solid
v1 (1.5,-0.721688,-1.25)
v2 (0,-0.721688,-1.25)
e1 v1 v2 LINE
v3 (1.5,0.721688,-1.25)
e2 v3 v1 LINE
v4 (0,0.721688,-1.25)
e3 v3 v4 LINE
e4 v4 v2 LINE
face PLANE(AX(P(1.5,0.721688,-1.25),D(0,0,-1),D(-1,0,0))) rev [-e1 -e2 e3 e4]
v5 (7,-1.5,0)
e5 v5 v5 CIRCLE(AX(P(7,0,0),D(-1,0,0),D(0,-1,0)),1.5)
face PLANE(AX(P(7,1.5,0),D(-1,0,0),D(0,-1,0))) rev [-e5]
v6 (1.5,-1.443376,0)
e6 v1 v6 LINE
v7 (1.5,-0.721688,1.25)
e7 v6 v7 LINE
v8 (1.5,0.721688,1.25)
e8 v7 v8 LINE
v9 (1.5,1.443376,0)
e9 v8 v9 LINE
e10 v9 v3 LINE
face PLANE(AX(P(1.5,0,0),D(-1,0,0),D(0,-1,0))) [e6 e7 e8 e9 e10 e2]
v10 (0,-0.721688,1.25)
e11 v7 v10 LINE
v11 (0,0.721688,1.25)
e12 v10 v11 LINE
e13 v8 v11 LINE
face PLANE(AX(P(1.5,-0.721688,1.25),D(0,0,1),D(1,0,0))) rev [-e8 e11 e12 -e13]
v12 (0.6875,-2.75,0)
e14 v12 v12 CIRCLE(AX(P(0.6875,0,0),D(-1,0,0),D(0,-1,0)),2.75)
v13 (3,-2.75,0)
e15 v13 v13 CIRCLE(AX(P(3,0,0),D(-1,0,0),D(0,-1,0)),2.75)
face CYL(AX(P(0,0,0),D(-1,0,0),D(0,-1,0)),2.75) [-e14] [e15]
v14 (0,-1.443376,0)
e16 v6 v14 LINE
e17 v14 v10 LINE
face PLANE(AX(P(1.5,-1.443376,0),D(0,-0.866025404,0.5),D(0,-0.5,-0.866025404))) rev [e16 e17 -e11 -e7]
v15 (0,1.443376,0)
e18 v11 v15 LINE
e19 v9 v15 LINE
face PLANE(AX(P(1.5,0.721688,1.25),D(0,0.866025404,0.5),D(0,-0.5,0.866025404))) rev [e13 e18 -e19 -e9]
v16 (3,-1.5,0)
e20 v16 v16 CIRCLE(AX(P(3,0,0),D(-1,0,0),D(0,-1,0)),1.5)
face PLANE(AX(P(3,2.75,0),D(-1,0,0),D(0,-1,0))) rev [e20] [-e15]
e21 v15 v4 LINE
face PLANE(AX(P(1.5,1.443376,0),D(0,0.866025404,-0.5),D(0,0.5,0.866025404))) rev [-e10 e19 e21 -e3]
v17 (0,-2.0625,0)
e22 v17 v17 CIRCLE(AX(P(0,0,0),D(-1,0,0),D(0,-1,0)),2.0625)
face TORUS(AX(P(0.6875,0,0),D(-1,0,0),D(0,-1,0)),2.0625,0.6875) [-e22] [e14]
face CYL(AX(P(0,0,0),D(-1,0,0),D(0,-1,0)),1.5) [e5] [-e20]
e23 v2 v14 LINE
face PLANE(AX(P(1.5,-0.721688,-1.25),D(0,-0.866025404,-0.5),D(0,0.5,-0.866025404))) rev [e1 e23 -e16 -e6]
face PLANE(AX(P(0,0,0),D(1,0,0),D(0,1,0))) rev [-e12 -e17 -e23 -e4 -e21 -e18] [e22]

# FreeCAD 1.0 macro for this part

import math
import FreeCAD as App
import Part
import Sketcher
Q = App.Units.Quantity


def add_polygon(sketch, points):
    """Adds a closed chain of lines whose ends are joined by coincident constraints."""
    first, n = sketch.GeometryCount, len(points)
    for a, b in zip(points, points[1:] + points[:1]):
        sketch.addGeometry(Part.LineSegment(App.Vector(*a, 0), App.Vector(*b, 0)), False)
    for i in range(n):
        sketch.addConstraint(Sketcher.Constraint("Coincident", first + i, 2, first + (i + 1) % n, 1))

doc = App.newDocument("Part")
params = doc.addObject("Spreadsheet::Sheet", "Params")
for row, (alias, value) in enumerate([
    ("sketch1_width", "7 mm"),
    ("sketch1_width2", "4 mm"),
    ("sketch1_height", "1.5 mm"),
    ("sketch1_height2", "1.25 mm"),
    ("revolution_angle", "360 deg"),
    ("pocket1_length", "1.5 mm"),
], start=1):
    params.set(f"A{row}", alias)
    params.set(f"B{row}", "=" + value)
    params.setAlias(f"B{row}", alias)

body = doc.addObject("PartDesign::Body", "Body")

sketch1 = body.newObject("Sketcher::SketchObject", "Sketch")
sketch1.AttachmentSupport = (doc.getObject("XY_Plane"), [""])
sketch1.MapMode = "FlatFace"
sketch1.addGeometry([
    Part.LineSegment(App.Vector(0, 2.0625, 0), App.Vector(0, 0, 0)),
    Part.LineSegment(App.Vector(0, 0, 0), App.Vector(7, 0, 0)),
    Part.LineSegment(App.Vector(7, 0, 0), App.Vector(7, 1.5, 0)),
    Part.LineSegment(App.Vector(7, 1.5, 0), App.Vector(3, 1.5, 0)),
    Part.LineSegment(App.Vector(3, 1.5, 0), App.Vector(3, 2.75, 0)),
    Part.LineSegment(App.Vector(3, 2.75, 0), App.Vector(0.6875, 2.75, 0)),
    Part.ArcOfCircle(Part.Circle(App.Vector(0.6875, 2.0625, 0), App.Vector(0, 0, 1), 0.6875), math.radians(90), math.radians(180)),
], False)
sketch1.addConstraint([
    Sketcher.Constraint("Coincident", 0, 2, 1, 1),
    Sketcher.Constraint("Coincident", 1, 2, 2, 1),
    Sketcher.Constraint("Coincident", 2, 2, 3, 1),
    Sketcher.Constraint("Coincident", 3, 2, 4, 1),
    Sketcher.Constraint("Coincident", 4, 2, 5, 1),
    Sketcher.Constraint("Tangent", 5, 2, 6, 1),
    Sketcher.Constraint("Tangent", 6, 2, 0, 1),
    Sketcher.Constraint("Vertical", 0),
    Sketcher.Constraint("Horizontal", 1),
    Sketcher.Constraint("Vertical", 2),
    Sketcher.Constraint("Horizontal", 3),
    Sketcher.Constraint("Vertical", 4),
    Sketcher.Constraint("Horizontal", 5),
    Sketcher.Constraint("Coincident", 0, 2, -1, 1),
    Sketcher.Constraint("DistanceX", 1, 1, 1, 2, 7.0),
    Sketcher.Constraint("DistanceX", 3, 2, 3, 1, 4.0),
    Sketcher.Constraint("DistanceY", 2, 1, 2, 2, 1.5),
    Sketcher.Constraint("DistanceY", 4, 1, 4, 2, 1.25),
    Sketcher.Constraint("Radius", 6, 0.6875),
])
sketch1.setExpression("Constraints[14]", "Params.sketch1_width")
sketch1.setExpression("Constraints[15]", "Params.sketch1_width2")
sketch1.setExpression("Constraints[16]", "Params.sketch1_height")
sketch1.setExpression("Constraints[17]", "Params.sketch1_height2")
revolution = body.newObject("PartDesign::Revolution", "Revolution")
revolution.Profile = sketch1
revolution.ReferenceAxis = (sketch1, ["H_Axis"])
revolution.setExpression("Angle", "Params.revolution_angle")

sketch2 = body.newObject("Sketcher::SketchObject", "Sketch001")
sketch2.AttachmentSupport = (doc.getObject("YZ_Plane"), [""])
sketch2.MapMode = "FlatFace"
add_polygon(sketch2, [(1.443376, 0), (0.721688, -1.25), (-0.721688, -1.25), (-1.443376, 0), (-0.721688, 1.25), (0.721688, 1.25)])
sketch2.addConstraint([
    Sketcher.Constraint("Horizontal", 1),
    Sketcher.Constraint("Horizontal", 4),
    Sketcher.Constraint("Symmetric", 0, 2, 3, 2, -1, 1),
    Sketcher.Constraint("Symmetric", 2, 2, 5, 2, -1, 1),
    Sketcher.Constraint("PointOnObject", 2, 2, -1),
    Sketcher.Constraint("Parallel", 2, 5),
    Sketcher.Constraint("Vertical", 1, 2, 3, 2),
    Sketcher.Constraint("Angle", 0, Q("-120 deg")),
    Sketcher.Constraint("DistanceY", 1, 2, 3, 2, 2.5),
    Sketcher.Constraint("DistanceX", 1, 2, 1, 1, 1.443376),
])
pocket1 = body.newObject("PartDesign::Pocket", "Pocket")
pocket1.Profile = sketch2
pocket1.setExpression("Length", "Params.pocket1_length")
pocket1.Reversed = True

doc.recompute()
